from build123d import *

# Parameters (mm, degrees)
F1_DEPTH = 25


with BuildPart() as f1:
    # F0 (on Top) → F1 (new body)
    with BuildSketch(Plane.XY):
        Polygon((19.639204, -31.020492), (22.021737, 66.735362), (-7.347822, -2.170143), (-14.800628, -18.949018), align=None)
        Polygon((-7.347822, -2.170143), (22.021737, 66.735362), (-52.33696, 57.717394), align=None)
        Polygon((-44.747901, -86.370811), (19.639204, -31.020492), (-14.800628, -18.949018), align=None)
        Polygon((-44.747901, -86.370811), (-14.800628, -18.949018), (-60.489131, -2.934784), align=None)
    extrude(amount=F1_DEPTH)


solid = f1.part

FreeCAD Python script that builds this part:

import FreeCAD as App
import Part
import Sketcher
Q = App.Units.Quantity

doc = App.newDocument("Part")
body = doc.addObject("PartDesign::Body", "Body")

# Sketch on XY plane
sketch1 = body.newObject("Sketcher::SketchObject", "Sketch")
sketch1.AttachmentSupport = (doc.getObject("XY_Plane"), [""])
sketch1.MapMode = "FlatFace"
sketch1.addGeometry([
    Part.LineSegment(App.Vector(20, -31, 0), App.Vector(22, 67, 0)),  # 0
    Part.LineSegment(App.Vector(22, 67, 0), App.Vector(-52, 58, 0)),  # 1
    Part.LineSegment(App.Vector(-52, 58, 0), App.Vector(-7, -2, 0)),  # 2
    Part.LineSegment(App.Vector(-7, -2, 0), App.Vector(-15, -19, 0)),  # 3
    Part.LineSegment(App.Vector(-15, -19, 0), App.Vector(-60, -3, 0)),  # 4
    Part.LineSegment(App.Vector(-60, -3, 0), App.Vector(-45, -86, 0)),  # 5
    Part.LineSegment(App.Vector(-45, -86, 0), App.Vector(20, -31, 0)),  # 6
], False)
sketch1.addConstraint([
    Sketcher.Constraint("Coincident", 0, 2, 1, 1),
    Sketcher.Constraint("Coincident", 1, 2, 2, 1),
    Sketcher.Constraint("Coincident", 2, 2, 3, 1),
    Sketcher.Constraint("Coincident", 3, 2, 4, 1),
    Sketcher.Constraint("Coincident", 4, 2, 5, 1),
    Sketcher.Constraint("Coincident", 5, 2, 6, 1),
    Sketcher.Constraint("Coincident", 6, 2, 0, 1),
    Sketcher.Constraint("Equal", 1, 2),
    Sketcher.Constraint("Equal", 5, 6),
    Sketcher.Constraint("Distance", 3, Q("18.359601 mm")),
    Sketcher.Constraint("DistanceX", 5, 2, -1, 1, Q("44.747901 mm")),
    Sketcher.Constraint("Distance", 4, Q("48.413789 mm")),
    Sketcher.Constraint("DistanceY", -1, 1, 0, 2, Q("66.735362 mm")),
    Sketcher.Constraint("DistanceX", 1, 2, -1, 1, Q("52.33696 mm")),
    Sketcher.Constraint("DistanceX", 4, 2, -1, 1, Q("60.489131 mm")),
    Sketcher.Constraint("DistanceY", 5, 2, -1, 1, Q("86.370811 mm")),
    Sketcher.Constraint("DistanceX", 2, 2, 0, 2, Q("29.369559 mm")),
    Sketcher.Constraint("DistanceY", 3, 2, 1, 2, Q("76.666412 mm")),
    Sketcher.Constraint("DistanceY", 3, 2, 0, 2, Q("85.68438 mm")),
    Sketcher.Constraint("DistanceX", 4, 2, 2, 2, Q("53.141309 mm")),
    Sketcher.Constraint("DistanceX", 3, 2, 6, 2, Q("34.439832 mm")),
])
pad1 = body.newObject("PartDesign::Pad", "Pad")
pad1.Profile = sketch1
pad1.Length = 25

doc.recompute()
